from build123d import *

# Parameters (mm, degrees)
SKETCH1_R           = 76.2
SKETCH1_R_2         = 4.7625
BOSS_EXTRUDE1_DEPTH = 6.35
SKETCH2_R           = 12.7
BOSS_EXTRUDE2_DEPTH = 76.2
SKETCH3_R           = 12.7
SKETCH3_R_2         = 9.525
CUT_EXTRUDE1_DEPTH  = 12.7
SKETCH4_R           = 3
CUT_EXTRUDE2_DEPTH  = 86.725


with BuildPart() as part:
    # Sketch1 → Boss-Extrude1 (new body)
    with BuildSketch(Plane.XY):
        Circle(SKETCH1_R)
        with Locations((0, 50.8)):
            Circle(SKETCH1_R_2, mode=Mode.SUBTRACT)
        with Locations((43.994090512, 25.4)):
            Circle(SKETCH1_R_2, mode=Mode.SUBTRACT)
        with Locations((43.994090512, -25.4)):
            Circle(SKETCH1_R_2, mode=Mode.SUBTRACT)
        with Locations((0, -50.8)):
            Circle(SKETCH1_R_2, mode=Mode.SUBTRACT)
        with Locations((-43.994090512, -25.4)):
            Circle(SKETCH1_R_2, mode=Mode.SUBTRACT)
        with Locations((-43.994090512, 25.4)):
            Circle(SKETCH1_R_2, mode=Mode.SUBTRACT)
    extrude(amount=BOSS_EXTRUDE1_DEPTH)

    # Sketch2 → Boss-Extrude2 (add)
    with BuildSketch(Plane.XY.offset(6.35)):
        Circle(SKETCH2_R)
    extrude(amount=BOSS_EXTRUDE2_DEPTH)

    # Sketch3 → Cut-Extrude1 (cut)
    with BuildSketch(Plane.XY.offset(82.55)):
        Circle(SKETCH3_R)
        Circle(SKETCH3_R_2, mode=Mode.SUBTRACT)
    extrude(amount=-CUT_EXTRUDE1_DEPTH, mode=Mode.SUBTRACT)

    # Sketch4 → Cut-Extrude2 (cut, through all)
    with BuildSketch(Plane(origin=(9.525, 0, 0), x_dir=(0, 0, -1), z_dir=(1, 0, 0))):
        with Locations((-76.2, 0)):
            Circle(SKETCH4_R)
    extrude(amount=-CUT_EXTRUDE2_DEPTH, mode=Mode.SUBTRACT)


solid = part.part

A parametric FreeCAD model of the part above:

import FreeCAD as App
import Part
import Sketcher
Q = App.Units.Quantity

doc = App.newDocument("Part")
params = doc.addObject("Spreadsheet::Sheet", "Params")
for row, (alias, value) in enumerate([
    ("sketch1_diameter", "6 in"),
    ("sketch1_diameter2", "0.375 in"),
    ("pad1_length", "0.25 in"),
    ("sketch2_diameter", "1 in"),
    ("pad2_length", "3 in"),
    ("sketch3_diameter", "1 in"),
    ("sketch3_diameter2", "0.75 in"),
    ("pocket1_length", "0.5 in"),
], start=1):
    params.set(f"A{row}", alias)
    params.set(f"B{row}", "=" + value)
    params.setAlias(f"B{row}", alias)

body = doc.addObject("PartDesign::Body", "Body")

# Sketch on XY plane
sketch1 = body.newObject("Sketcher::SketchObject", "Sketch")
sketch1.AttachmentSupport = (doc.getObject("XY_Plane"), [""])
sketch1.MapMode = "FlatFace"
sketch1.addGeometry([
    Part.Circle(App.Vector(0, 0, 0), App.Vector(0, 0, 1), 76.2),  # 0
    Part.Circle(App.Vector(-44, -25.4, 0), App.Vector(0, 0, 1), 4.8),  # 1
    Part.Circle(App.Vector(0, -50.8, 0), App.Vector(0, 0, 1), 4.8),  # 2
    Part.Circle(App.Vector(44, -25.4, 0), App.Vector(0, 0, 1), 4.8),  # 3
    Part.Circle(App.Vector(-44, 25.4, 0), App.Vector(0, 0, 1), 4.8),  # 4
    Part.Circle(App.Vector(44, 25.4, 0), App.Vector(0, 0, 1), 4.8),  # 5
    Part.Circle(App.Vector(0, 50.8, 0), App.Vector(0, 0, 1), 4.8),  # 6
], False)
sketch1.addConstraint([
    Sketcher.Constraint("Coincident", 0, 3, -1, 1),
    Sketcher.Constraint("Equal", 1, 2),
    Sketcher.Constraint("Equal", 2, 3),
    Sketcher.Constraint("Equal", 3, 4),
    Sketcher.Constraint("Equal", 4, 5),
    Sketcher.Constraint("Equal", 5, 6),
    Sketcher.Constraint("Symmetric", 3, 3, 4, 3, -1, 1),
    Sketcher.Constraint("Symmetric", 1, 3, 5, 3, -1, 1),
    Sketcher.Constraint("Symmetric", 2, 3, 6, 3, -1, 1),
    Sketcher.Constraint("Symmetric", 1, 3, 3, 3, -2),
    Sketcher.Constraint("PointOnObject", 2, 3, -2),
    Sketcher.Constraint("Diameter", 0, Q("6 in")),
    Sketcher.Constraint("Diameter", 1, Q("0.375 in")),
    Sketcher.Constraint("DistanceY", 1, 3, -1, 1, Q("1 in")),
    Sketcher.Constraint("DistanceY", 2, 3, -1, 1, Q("2 in")),
    Sketcher.Constraint("DistanceX", 1, 3, -1, 1, 43.994091),
])
sketch1.setExpression("Constraints[11]", "Params.sketch1_diameter")
sketch1.setExpression("Constraints[12]", "Params.sketch1_diameter2")
pad1 = body.newObject("PartDesign::Pad", "Pad")
pad1.Profile = sketch1
pad1.setExpression("Length", "Params.pad1_length")

# Sketch on XY plane
sketch2 = body.newObject("Sketcher::SketchObject", "Sketch001")
sketch2.AttachmentSupport = (doc.getObject("XY_Plane"), [""])
sketch2.MapMode = "FlatFace"
sketch2.AttachmentOffset = App.Placement(App.Vector(0, 0, 0.25 * 25.4), App.Rotation())
sketch2.addGeometry(Part.Circle(App.Vector(0, 0, 0), App.Vector(0, 0, 1), 13), False)
sketch2.addConstraint([
    Sketcher.Constraint("Coincident", 0, 3, -1, 1),
    Sketcher.Constraint("Diameter", 0, Q("1 in")),
])
sketch2.setExpression("Constraints[1]", "Params.sketch2_diameter")
pad2 = body.newObject("PartDesign::Pad", "Pad001")
pad2.Profile = sketch2
pad2.setExpression("Length", "Params.pad2_length")

# Sketch on XY plane
sketch3 = body.newObject("Sketcher::SketchObject", "Sketch002")
sketch3.AttachmentSupport = (doc.getObject("XY_Plane"), [""])
sketch3.MapMode = "FlatFace"
sketch3.AttachmentOffset = App.Placement(App.Vector(0, 0, 3.25 * 25.4), App.Rotation())
sketch3.addGeometry([
    Part.Circle(App.Vector(0, 0, 0), App.Vector(0, 0, 1), 13),
    Part.Circle(App.Vector(0, 0, 0), App.Vector(0, 0, 1), 10),
], False)
sketch3.addConstraint([
    Sketcher.Constraint("Coincident", 0, 3, -1, 1),
    Sketcher.Constraint("Coincident", 1, 3, -1, 1),
    Sketcher.Constraint("Diameter", 0, Q("1 in")),
    Sketcher.Constraint("Diameter", 1, Q("0.75 in")),
])
sketch3.setExpression("Constraints[2]", "Params.sketch3_diameter")
sketch3.setExpression("Constraints[3]", "Params.sketch3_diameter2")
pocket1 = body.newObject("PartDesign::Pocket", "Pocket")
pocket1.Profile = sketch3
pocket1.setExpression("Length", "Params.pocket1_length")

# Sketch on YZ plane
sketch4 = body.newObject("Sketcher::SketchObject", "Sketch003")
sketch4.AttachmentSupport = (doc.getObject("YZ_Plane"), [""])
sketch4.MapMode = "FlatFace"
sketch4.AttachmentOffset = App.Placement(App.Vector(0, 0, 0.375 * 25.4), App.Rotation())
sketch4.addGeometry(Part.Circle(App.Vector(0, 76.2, 0), App.Vector(0, 0, 1), 3), False)
sketch4.addConstraint([
    Sketcher.Constraint("PointOnObject", 0, 3, -2),
    Sketcher.Constraint("DistanceY", -1, 1, 0, 3, Q("3 in")),
    Sketcher.Constraint("Diameter", 0, 6.0),
])
pocket2 = body.newObject("PartDesign::Pocket", "Pocket001")
pocket2.Profile = sketch4
pocket2.Type = "ThroughAll"

doc.recompute()
